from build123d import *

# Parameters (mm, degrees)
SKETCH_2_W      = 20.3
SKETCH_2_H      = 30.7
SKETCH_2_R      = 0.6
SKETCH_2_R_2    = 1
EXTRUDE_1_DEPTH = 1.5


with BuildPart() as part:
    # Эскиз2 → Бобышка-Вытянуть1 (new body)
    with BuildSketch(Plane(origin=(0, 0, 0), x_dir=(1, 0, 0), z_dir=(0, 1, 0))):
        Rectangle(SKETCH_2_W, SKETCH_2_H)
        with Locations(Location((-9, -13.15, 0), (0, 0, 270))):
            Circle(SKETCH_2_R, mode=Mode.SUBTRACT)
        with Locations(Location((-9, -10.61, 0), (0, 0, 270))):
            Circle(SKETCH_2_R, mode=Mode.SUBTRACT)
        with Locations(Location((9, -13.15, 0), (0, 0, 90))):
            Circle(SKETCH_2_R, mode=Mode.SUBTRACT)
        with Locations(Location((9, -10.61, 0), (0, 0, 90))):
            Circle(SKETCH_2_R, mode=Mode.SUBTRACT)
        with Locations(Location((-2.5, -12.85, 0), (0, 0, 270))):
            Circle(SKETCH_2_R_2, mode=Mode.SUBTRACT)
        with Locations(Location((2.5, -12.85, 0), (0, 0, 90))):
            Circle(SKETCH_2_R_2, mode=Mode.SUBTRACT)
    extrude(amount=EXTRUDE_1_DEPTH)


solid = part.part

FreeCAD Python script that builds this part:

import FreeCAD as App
import Part
import Sketcher
from FreeCAD import Vector
Q = App.Units.Quantity

doc = App.newDocument("Part")
body = doc.addObject("PartDesign::Body", "Body")

# Sketch on XZ plane
sketch1 = doc.addObject("Sketcher::SketchObject", "Sketch")
body.addObject(sketch1)
sketch1.AttachmentSupport = (doc.XZ_Plane, [""])
sketch1.MapMode = "FlatFace"
sketch1.addGeometry(Part.LineSegment(Vector(-10.2, -15.3, 0), Vector(-10.2, 15.3, 0)), False)
sketch1.addGeometry(Part.LineSegment(Vector(-10.2, 15.3, 0), Vector(10.2, 15.3, 0)), False)
sketch1.addGeometry(Part.LineSegment(Vector(10.2, 15.3, 0), Vector(10.2, -15.3, 0)), False)
sketch1.addGeometry(Part.LineSegment(Vector(10.2, -15.3, 0), Vector(-10.2, -15.3, 0)), False)
sketch1.addGeometry(Part.Circle(Vector(-9, 13.2, 0), Vector(0, 0, 1), 0.6), False)
sketch1.addGeometry(Part.Circle(Vector(-2.5, 12.8, 0), Vector(0, 0, 1), 1), False)
sketch1.addGeometry(Part.Circle(Vector(9, 13.2, 0), Vector(0, 0, 1), 0.6), False)
sketch1.addGeometry(Part.Circle(Vector(2.5, 12.8, 0), Vector(0, 0, 1), 1), False)
sketch1.addGeometry(Part.Circle(Vector(-9, 10.6, 0), Vector(0, 0, 1), 0.6), False)
sketch1.addGeometry(Part.Circle(Vector(9, 10.6, 0), Vector(0, 0, 1), 0.6), False)
sketch1.addConstraint(Sketcher.Constraint("Coincident", 0, 2, 1, 1))
sketch1.addConstraint(Sketcher.Constraint("Coincident", 1, 2, 2, 1))
sketch1.addConstraint(Sketcher.Constraint("Coincident", 2, 2, 3, 1))
sketch1.addConstraint(Sketcher.Constraint("Coincident", 3, 2, 0, 1))
sketch1.addConstraint(Sketcher.Constraint("Vertical", 0))
sketch1.addConstraint(Sketcher.Constraint("Horizontal", 1))
sketch1.addConstraint(Sketcher.Constraint("Vertical", 2))
sketch1.addConstraint(Sketcher.Constraint("Horizontal", 3))
sketch1.addConstraint(Sketcher.Constraint("Equal", 4, 6))
sketch1.addConstraint(Sketcher.Constraint("Equal", 5, 7))
sketch1.addConstraint(Sketcher.Constraint("Equal", 6, 8))
sketch1.addConstraint(Sketcher.Constraint("Equal", 8, 9))
sketch1.addConstraint(Sketcher.Constraint("Symmetric", 0, 2, 2, 2, -1, 1))
sketch1.addConstraint(Sketcher.Constraint("Symmetric", 4, 3, 6, 3, -2))
sketch1.addConstraint(Sketcher.Constraint("Symmetric", 5, 3, 7, 3, -2))
sketch1.addConstraint(Sketcher.Constraint("Symmetric", 8, 3, 9, 3, -2))
sketch1.addConstraint(Sketcher.Constraint("Vertical", 4, 3, 8, 3))
sketch1.addConstraint(Sketcher.Constraint("Diameter", 5, Q("2 mm")))
sketch1.addConstraint(Sketcher.Constraint("Diameter", 4, Q("1.2 mm")))
sketch1.addConstraint(Sketcher.Constraint("DistanceX", 1, 1, 1, 2, Q("20.3 mm")))
sketch1.addConstraint(Sketcher.Constraint("DistanceY", 0, 1, 0, 2, Q("30.7 mm")))
sketch1.addConstraint(Sketcher.Constraint("DistanceX", 4, 3, -1, 1, Q("9 mm")))
sketch1.addConstraint(Sketcher.Constraint("DistanceX", 5, 3, 7, 3, Q("5 mm")))
sketch1.addConstraint(Sketcher.Constraint("DistanceY", 5, 3, 4, 3, Q("0.3 mm")))
sketch1.addConstraint(Sketcher.Constraint("DistanceY", 4, 3, 0, 2, Q("2.2 mm")))
sketch1.addConstraint(Sketcher.Constraint("DistanceY", -1, 1, 8, 3, Q("10.61 mm")))
pad1 = doc.addObject("PartDesign::Pad", "Pad")
body.addObject(pad1)
pad1.Profile = sketch1
pad1.Length = 1.5
pad1.Reversed = True

doc.recompute()
